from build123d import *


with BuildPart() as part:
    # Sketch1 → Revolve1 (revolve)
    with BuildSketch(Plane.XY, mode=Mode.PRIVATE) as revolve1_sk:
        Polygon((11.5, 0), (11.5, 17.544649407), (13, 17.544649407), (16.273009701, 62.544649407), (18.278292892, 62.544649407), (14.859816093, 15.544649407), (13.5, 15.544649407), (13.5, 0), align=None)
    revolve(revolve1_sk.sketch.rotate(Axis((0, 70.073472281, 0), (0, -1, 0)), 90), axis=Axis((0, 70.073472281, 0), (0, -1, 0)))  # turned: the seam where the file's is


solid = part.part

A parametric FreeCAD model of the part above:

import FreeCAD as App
import Part
import Sketcher
from FreeCAD import Vector
Q = App.Units.Quantity


def add_polygon(sketch, points):
    """Adds a closed chain of lines whose ends are joined by coincident constraints."""
    first, n = sketch.GeometryCount, len(points)
    for a, b in zip(points, points[1:] + points[:1]):
        sketch.addGeometry(Part.LineSegment(App.Vector(*a, 0), App.Vector(*b, 0)), False)
    for i in range(n):
        sketch.addConstraint(Sketcher.Constraint("Coincident", first + i, 2, first + (i + 1) % n, 1))

doc = App.newDocument("Part")
body = doc.addObject("PartDesign::Body", "Body")

sketch1 = body.newObject("Sketcher::SketchObject", "Sketch")
sketch1.AttachmentSupport = (doc.getObject("XY_Plane"), [""])
sketch1.MapMode = "FlatFace"
add_polygon(sketch1, [(11.5, 17.5), (11.5, 0), (13.5, 0), (13.5, 15.5), (14.9, 15.5), (18.3, 62.5), (16.3, 62.5), (13, 17.5)])
sketch1.addConstraint([
    Sketcher.Constraint("Vertical", 0),
    Sketcher.Constraint("Horizontal", 1),
    Sketcher.Constraint("Vertical", 2),
    Sketcher.Constraint("Horizontal", 3),
    Sketcher.Constraint("Horizontal", 5),
    Sketcher.Constraint("Horizontal", 7),
    Sketcher.Constraint("PointOnObject", 0, 2, -1),
    Sketcher.Constraint("Parallel", 4, 6),
    Sketcher.Constraint("DistanceX", 1, 1, 1, 2, Q("2 mm")),
    Sketcher.Constraint("DistanceX", 7, 2, 7, 1, Q("1.5 mm")),
    Sketcher.Constraint("DistanceX", -1, 1, 6, 2, Q("13 mm")),
    Sketcher.Constraint("DistanceY", 3, 2, 4, 2, Q("47 mm")),
    Sketcher.Constraint("DistanceY", 2, 2, 6, 2, Q("2 mm")),
    Sketcher.Constraint("Angle", 4, Q("85.84 deg")),
    Sketcher.Constraint("DistanceY", 0, 2, 0, 1, Q("17.544649 mm")),
    Sketcher.Constraint("DistanceX", 3, 1, 3, 2, Q("1.359816 mm")),
])
revolution = body.newObject("PartDesign::Revolution", "Revolution")
revolution.Profile = sketch1
revolution.ReferenceAxis = (sketch1, ["V_Axis"])
revolution.Angle = 360

doc.recompute()
